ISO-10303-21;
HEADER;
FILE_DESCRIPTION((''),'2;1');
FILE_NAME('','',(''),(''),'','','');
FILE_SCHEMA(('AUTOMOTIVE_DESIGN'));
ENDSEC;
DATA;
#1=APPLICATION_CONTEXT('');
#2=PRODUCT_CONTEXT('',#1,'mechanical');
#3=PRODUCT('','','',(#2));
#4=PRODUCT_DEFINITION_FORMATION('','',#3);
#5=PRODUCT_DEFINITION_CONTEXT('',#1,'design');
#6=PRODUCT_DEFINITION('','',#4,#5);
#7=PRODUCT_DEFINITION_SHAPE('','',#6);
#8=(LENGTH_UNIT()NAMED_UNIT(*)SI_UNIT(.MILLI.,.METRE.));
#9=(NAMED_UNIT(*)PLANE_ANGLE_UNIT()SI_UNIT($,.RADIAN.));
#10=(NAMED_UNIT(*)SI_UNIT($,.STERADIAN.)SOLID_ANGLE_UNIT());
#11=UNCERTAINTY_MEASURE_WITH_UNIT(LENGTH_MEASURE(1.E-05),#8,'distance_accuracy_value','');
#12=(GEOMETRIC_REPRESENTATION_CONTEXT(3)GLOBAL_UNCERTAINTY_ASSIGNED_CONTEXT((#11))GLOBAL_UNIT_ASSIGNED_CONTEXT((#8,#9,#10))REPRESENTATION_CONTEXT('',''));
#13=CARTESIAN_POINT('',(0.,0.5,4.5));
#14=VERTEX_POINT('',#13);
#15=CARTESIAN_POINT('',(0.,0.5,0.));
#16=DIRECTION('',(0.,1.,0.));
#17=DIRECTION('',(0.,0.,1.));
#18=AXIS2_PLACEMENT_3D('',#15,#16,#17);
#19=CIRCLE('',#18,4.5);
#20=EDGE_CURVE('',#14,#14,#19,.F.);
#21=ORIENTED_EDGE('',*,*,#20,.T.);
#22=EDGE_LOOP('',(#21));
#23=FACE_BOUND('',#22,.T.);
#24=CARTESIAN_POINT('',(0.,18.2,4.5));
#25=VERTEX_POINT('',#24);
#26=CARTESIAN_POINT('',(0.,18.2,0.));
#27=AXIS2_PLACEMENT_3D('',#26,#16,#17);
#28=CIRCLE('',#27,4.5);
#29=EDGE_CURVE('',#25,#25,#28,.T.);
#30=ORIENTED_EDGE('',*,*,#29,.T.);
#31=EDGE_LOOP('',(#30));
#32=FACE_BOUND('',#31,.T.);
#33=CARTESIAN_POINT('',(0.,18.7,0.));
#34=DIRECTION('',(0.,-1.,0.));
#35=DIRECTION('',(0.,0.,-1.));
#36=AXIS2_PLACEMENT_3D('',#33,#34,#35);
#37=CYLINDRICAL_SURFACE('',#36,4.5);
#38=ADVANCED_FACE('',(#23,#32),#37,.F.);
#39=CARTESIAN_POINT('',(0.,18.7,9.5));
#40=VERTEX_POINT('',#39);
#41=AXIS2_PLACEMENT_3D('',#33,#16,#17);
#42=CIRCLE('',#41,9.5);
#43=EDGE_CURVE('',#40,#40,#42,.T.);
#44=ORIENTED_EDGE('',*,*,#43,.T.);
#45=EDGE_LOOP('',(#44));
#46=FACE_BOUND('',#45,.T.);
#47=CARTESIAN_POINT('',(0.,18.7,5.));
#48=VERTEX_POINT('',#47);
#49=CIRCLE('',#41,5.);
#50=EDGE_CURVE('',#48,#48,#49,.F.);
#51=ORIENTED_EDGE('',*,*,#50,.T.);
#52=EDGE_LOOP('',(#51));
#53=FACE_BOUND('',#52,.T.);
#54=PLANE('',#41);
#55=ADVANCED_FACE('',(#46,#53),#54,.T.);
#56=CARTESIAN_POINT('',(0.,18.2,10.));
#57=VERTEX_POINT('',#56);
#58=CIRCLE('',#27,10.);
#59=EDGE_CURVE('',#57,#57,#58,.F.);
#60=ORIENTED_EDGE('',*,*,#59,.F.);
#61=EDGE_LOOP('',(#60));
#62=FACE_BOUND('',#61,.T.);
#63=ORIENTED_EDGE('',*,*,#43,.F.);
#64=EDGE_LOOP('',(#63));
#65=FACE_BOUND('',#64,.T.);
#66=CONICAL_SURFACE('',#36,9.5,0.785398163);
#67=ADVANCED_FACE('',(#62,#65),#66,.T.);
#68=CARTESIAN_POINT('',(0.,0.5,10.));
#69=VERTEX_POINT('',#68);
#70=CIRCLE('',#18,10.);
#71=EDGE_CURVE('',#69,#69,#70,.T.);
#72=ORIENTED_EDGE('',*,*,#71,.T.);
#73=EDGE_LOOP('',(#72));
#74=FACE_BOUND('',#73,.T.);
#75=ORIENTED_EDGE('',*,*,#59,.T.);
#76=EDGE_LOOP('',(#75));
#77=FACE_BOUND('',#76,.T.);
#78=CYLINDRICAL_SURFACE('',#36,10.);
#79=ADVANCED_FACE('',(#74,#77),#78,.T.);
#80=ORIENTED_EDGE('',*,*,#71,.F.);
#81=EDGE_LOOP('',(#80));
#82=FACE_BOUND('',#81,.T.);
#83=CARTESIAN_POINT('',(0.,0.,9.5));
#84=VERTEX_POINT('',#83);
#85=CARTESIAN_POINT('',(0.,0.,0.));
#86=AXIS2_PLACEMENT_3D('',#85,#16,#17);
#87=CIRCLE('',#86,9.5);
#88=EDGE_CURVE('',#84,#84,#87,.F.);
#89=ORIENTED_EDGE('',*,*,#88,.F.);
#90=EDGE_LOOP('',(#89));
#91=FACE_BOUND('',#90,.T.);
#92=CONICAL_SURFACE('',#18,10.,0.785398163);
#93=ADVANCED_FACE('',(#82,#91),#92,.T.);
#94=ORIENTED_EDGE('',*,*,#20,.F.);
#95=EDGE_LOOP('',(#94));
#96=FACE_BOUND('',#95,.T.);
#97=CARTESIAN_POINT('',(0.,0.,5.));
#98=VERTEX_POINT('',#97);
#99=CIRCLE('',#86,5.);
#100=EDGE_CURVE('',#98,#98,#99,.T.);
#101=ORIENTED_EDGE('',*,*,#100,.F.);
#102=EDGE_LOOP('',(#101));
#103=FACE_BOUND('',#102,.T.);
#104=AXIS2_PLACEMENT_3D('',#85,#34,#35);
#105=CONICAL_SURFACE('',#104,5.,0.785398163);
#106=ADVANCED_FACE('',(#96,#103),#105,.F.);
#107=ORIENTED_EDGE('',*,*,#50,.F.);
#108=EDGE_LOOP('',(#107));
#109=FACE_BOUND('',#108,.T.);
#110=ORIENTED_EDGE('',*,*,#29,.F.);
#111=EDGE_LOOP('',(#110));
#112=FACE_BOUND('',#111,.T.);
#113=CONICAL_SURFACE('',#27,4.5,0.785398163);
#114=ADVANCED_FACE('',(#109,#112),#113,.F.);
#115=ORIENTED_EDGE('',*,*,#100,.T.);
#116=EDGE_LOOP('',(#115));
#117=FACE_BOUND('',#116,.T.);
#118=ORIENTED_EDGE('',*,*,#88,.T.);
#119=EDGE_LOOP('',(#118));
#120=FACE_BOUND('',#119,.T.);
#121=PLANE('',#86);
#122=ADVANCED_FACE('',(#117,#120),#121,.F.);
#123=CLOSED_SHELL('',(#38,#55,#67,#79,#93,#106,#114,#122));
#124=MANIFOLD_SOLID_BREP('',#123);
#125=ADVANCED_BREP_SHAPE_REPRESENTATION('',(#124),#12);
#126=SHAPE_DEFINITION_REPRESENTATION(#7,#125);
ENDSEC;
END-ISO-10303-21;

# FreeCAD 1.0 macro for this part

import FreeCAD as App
import Part
import Sketcher

V = App.Vector


def edges_at(feature, points):
    """Names of the edges that pass closest to the given points."""
    edges = feature.Shape.Edges
    near = lambda p: min(range(len(edges)), key=lambda i: edges[i].distToShape(Part.Vertex(*p))[0])
    return sorted({f"Edge{near(p) + 1}" for p in points})

doc = App.newDocument("Part")
body = doc.addObject("PartDesign::Body", "Body")

sketch1 = body.newObject("Sketcher::SketchObject", "Sketch")
sketch1.AttachmentSupport = (doc.getObject("XZ_Plane"), [""])
sketch1.MapMode = "FlatFace"
sketch1.addGeometry(Part.Circle(V(0, 0, 0), V(0, 0, 1), 10), False)
sketch1.addGeometry(Part.Circle(V(0, 0, 0), V(0, 0, 1), 4.5), False)
sketch1.addConstraint(Sketcher.Constraint("Coincident", 0, 3, -1, 1))
sketch1.addConstraint(Sketcher.Constraint("Coincident", 1, 3, -1, 1))
sketch1.addConstraint(Sketcher.Constraint("Diameter", 0, 20.0))
sketch1.addConstraint(Sketcher.Constraint("Diameter", 1, 9.0))
pad1 = body.newObject("PartDesign::Pad", "Pad")
pad1.Profile = sketch1
pad1.Length = 18.7
pad1.Reversed = True
doc.recompute()

chamfer = body.newObject("PartDesign::Chamfer", "Chamfer")
chamfer.Base = (pad1, edges_at(pad1, [
    (0, 0, -10),
    (0, 18.7, -10),
    (0, 0, -4.5),
    (0, 18.7, -4.5),
]))
chamfer.Size = 0.5

doc.recompute()
